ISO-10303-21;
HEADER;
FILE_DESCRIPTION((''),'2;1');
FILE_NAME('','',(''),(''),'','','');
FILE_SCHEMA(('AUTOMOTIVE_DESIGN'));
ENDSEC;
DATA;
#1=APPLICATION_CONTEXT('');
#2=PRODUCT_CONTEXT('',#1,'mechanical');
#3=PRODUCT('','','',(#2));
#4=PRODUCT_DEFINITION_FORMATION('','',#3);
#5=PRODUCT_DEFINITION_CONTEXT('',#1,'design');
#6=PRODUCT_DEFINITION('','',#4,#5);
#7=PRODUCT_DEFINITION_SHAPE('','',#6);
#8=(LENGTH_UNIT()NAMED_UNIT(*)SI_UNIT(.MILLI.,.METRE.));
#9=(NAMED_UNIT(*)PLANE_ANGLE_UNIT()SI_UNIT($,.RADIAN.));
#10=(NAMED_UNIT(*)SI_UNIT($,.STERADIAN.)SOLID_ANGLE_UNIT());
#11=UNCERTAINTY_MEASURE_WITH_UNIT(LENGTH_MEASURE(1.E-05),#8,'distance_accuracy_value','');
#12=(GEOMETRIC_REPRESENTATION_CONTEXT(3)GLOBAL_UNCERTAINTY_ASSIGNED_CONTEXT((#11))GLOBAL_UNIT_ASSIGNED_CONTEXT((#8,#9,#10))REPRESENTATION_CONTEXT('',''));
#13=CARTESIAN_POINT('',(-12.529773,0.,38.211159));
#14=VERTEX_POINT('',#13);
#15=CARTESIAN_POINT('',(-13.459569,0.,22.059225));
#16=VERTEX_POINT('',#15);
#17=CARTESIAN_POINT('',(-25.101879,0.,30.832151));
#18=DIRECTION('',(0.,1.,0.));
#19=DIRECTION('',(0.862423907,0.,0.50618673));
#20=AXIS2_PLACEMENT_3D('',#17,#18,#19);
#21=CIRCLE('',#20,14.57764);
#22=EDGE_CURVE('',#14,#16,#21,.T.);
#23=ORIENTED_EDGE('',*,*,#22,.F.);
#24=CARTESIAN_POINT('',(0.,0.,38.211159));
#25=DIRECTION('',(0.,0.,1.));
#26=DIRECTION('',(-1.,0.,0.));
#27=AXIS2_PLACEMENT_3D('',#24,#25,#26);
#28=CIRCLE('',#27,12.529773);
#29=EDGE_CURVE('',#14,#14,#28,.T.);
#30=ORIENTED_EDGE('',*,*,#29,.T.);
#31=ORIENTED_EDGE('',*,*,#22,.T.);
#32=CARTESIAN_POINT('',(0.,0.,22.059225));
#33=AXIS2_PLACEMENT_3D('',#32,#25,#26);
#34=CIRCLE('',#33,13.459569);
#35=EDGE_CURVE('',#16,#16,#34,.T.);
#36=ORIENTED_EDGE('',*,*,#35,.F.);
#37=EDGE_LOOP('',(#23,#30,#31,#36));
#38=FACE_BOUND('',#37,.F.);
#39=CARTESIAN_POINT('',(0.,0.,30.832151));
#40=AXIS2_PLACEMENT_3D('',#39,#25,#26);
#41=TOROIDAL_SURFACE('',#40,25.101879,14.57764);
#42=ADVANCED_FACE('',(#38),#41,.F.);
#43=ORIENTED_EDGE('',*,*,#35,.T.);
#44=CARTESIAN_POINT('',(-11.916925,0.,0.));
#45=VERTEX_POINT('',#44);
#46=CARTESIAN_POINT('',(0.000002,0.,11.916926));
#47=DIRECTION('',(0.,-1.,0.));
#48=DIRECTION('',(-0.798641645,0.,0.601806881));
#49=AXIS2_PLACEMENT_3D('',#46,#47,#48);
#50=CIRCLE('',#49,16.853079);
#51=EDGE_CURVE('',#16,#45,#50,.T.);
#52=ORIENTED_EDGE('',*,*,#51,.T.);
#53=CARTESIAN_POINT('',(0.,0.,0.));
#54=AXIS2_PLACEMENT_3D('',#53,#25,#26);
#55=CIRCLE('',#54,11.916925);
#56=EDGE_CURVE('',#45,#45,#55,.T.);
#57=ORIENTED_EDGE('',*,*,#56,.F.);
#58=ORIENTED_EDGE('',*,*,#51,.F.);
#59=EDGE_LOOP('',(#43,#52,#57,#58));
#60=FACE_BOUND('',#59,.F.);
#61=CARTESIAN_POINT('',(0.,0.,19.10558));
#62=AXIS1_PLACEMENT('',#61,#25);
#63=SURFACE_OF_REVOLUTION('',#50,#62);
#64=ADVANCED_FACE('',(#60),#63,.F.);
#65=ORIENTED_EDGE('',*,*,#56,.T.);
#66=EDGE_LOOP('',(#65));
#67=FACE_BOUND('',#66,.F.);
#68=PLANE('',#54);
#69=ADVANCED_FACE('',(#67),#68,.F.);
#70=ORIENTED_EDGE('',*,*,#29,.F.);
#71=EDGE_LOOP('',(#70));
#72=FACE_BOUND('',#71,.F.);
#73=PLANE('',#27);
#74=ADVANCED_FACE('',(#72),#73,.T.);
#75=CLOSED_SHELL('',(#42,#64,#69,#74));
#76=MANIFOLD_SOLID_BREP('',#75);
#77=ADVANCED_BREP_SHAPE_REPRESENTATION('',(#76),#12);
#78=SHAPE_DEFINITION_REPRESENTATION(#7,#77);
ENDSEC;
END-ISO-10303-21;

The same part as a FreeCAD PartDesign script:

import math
import FreeCAD as App
import Part
import Sketcher
from FreeCAD import Vector
Q = App.Units.Quantity

doc = App.newDocument("Part")
body = doc.addObject("PartDesign::Body", "Body")

# Sketch on XZ plane
sketch1 = body.newObject("Sketcher::SketchObject", "Sketch")
sketch1.AttachmentSupport = (doc.getObject("XZ_Plane"), [""])
sketch1.MapMode = "FlatFace"
sketch1.addGeometry([
    Part.LineSegment(Vector(-11.916925, 0, 0), Vector(0, 0, 0)),  # 0
    Part.LineSegment(Vector(0, 0, 0), Vector(0, 38.211159, 0)),  # 1
    Part.LineSegment(Vector(0, 38.211159, 0), Vector(-12.529773, 38.211159, 0)),  # 2
    Part.ArcOfCircle(Part.Circle(Vector(-25.101879, 30.832151, 0), Vector(0, 0, 1), 14.57764), math.radians(-36.999423), math.radians(30.410162)),  # 3
    Part.ArcOfCircle(Part.Circle(Vector(0.000002, 11.916926, 0), Vector(0, 0, 1), 16.853079), math.radians(143.000584), math.radians(224.999999)),  # 4
], False)
sketch1.addConstraint([
    Sketcher.Constraint("Coincident", 0, 2, 1, 1),
    Sketcher.Constraint("Coincident", 1, 2, 2, 1),
    Sketcher.Constraint("Coincident", 2, 2, 3, 2),
    Sketcher.Constraint("Tangent", 3, 1, 4, 1),
    Sketcher.Constraint("Coincident", 4, 2, 0, 1),
    Sketcher.Constraint("Horizontal", 0),
    Sketcher.Constraint("Vertical", 1),
    Sketcher.Constraint("Horizontal", 2),
    Sketcher.Constraint("Coincident", 0, 2, -1, 1),
    Sketcher.Constraint("PointOnObject", 4, 3, -2),
    Sketcher.Constraint("Radius", 3, Q("14.57764 mm")),
    Sketcher.Constraint("Radius", 4, Q("16.853079 mm")),
    Sketcher.Constraint("DistanceY", 1, 1, 1, 2, Q("38.211159 mm")),
    Sketcher.Constraint("DistanceY", 4, 3, 3, 1, Q("10.142299 mm")),
    Sketcher.Constraint("DistanceX", 0, 1, 0, 2, Q("11.916925 mm")),
])
revolution = body.newObject("PartDesign::Revolution", "Revolution")
revolution.Profile = sketch1
revolution.ReferenceAxis = (sketch1, ["V_Axis"])
revolution.Angle = 360

doc.recompute()
